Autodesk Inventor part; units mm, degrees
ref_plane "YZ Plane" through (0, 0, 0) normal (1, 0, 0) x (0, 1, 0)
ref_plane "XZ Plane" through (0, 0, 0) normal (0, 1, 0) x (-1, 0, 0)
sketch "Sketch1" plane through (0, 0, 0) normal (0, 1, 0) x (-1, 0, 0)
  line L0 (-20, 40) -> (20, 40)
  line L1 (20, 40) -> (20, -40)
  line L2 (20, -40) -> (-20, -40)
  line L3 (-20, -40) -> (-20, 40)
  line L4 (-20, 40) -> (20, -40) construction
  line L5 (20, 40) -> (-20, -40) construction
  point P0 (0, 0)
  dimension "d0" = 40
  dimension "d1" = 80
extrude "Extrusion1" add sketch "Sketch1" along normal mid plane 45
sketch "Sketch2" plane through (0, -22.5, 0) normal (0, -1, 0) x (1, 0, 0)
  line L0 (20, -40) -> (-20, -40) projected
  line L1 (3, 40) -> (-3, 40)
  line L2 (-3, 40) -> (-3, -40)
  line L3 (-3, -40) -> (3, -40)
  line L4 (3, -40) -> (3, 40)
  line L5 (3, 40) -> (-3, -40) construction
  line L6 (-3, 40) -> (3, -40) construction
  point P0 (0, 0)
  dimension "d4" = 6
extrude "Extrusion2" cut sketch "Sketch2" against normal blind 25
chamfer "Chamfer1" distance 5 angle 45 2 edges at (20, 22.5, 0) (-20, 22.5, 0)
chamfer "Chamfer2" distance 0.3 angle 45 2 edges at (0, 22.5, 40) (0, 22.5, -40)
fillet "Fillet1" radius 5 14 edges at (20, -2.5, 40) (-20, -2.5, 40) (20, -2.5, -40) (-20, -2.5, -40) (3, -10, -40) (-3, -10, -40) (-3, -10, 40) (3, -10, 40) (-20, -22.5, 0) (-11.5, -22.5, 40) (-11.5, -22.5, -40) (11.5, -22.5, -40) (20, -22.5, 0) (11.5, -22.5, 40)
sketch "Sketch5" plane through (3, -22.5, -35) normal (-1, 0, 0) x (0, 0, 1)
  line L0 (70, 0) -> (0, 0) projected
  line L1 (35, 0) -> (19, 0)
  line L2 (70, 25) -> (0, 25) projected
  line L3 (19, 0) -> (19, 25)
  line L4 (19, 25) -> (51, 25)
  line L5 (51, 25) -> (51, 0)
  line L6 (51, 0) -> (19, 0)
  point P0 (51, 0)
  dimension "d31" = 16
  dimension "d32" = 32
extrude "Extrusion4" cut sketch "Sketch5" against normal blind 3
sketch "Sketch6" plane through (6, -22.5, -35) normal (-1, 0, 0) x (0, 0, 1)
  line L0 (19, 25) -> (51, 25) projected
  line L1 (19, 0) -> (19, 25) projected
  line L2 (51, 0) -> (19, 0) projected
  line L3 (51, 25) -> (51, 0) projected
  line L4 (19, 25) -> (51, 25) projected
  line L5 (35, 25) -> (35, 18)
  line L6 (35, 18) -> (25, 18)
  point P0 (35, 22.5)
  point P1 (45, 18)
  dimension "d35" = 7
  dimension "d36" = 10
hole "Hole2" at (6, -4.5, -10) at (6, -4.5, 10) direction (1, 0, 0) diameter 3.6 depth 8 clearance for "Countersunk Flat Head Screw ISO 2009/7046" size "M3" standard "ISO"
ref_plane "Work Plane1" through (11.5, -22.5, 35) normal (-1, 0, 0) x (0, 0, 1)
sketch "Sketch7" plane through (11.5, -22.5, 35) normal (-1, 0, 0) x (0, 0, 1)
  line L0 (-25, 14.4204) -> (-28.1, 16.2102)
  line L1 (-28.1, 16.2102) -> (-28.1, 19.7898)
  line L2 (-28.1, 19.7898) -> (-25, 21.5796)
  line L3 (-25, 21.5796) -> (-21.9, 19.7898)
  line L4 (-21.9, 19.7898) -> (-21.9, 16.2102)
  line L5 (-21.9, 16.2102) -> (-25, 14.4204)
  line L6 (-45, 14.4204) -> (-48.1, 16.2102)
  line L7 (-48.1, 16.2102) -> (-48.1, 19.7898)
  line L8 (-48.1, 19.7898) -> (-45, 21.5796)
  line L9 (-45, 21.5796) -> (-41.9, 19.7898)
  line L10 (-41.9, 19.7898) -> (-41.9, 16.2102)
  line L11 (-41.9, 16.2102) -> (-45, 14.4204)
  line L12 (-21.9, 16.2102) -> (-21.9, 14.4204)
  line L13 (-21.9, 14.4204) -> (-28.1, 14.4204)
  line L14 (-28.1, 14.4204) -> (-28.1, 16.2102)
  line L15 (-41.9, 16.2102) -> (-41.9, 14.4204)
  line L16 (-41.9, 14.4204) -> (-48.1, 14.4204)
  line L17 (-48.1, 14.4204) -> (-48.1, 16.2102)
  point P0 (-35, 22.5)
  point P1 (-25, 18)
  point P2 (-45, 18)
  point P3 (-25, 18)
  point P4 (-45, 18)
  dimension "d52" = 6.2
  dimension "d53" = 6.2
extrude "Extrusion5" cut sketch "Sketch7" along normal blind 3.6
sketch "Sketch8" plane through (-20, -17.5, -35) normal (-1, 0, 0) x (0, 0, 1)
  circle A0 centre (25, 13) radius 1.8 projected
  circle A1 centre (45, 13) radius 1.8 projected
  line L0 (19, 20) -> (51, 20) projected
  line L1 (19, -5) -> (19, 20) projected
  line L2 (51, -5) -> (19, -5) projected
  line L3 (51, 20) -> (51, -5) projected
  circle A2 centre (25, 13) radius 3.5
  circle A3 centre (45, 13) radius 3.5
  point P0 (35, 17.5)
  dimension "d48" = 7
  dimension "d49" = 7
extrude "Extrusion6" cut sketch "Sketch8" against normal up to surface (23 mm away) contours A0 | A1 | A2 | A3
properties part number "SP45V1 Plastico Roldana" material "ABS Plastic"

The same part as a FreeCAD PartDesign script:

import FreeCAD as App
import Part
import Sketcher

V = App.Vector
Q = App.Units.Quantity


def edges_at(feature, points):
    """Names of the edges that pass closest to the given points."""
    edges = feature.Shape.Edges
    near = lambda p: min(range(len(edges)), key=lambda i: edges[i].distToShape(Part.Vertex(*p))[0])
    return sorted({f"Edge{near(p) + 1}" for p in points})


def add_polygon(sketch, points):
    """Adds a closed chain of lines whose ends are joined by coincident constraints."""
    first, n = sketch.GeometryCount, len(points)
    for a, b in zip(points, points[1:] + points[:1]):
        sketch.addGeometry(Part.LineSegment(App.Vector(*a, 0), App.Vector(*b, 0)), False)
    for i in range(n):
        sketch.addConstraint(Sketcher.Constraint("Coincident", first + i, 2, first + (i + 1) % n, 1))

doc = App.newDocument("Part")
params = doc.addObject("Spreadsheet::Sheet", "Params")
for row, (alias, value) in enumerate([
    ("sketch1_width", "40 mm"),
    ("sketch1_height", "80 mm"),
    ("pad1_length", "45 mm"),
    ("sketch2_width", "6 mm"),
    ("sketch2_height", "80 mm"),
    ("pocket1_length", "25 mm"),
    ("chamfer_size", "5 mm"),
    ("chamfer2_size", "0.3 mm"),
    ("fillet_radius", "5 mm"),
    ("sketch3_height", "32 mm"),
    ("sketch3_width", "25 mm"),
    ("pocket2_length", "3 mm"),
    ("sketch4_diameter", "3.6 mm"),
    ("hole_diameter", "3.6 mm"),
    ("hole_depth", "8 mm"),
    ("sketch5_height", "6.2 mm"),
    ("pocket3_length", "3.6 mm"),
    ("sketch6_diameter", "7 mm"),
    ("pocket4_length", "23 mm"),
], start=1):
    params.set(f"A{row}", alias)
    params.set(f"B{row}", "=" + value)
    params.setAlias(f"B{row}", alias)

body = doc.addObject("PartDesign::Body", "Body")

# Sketch on XZ plane
sketch1 = doc.addObject("Sketcher::SketchObject", "Sketch")
body.addObject(sketch1)
sketch1.AttachmentSupport = (doc.XZ_Plane, [""])
sketch1.MapMode = "FlatFace"
add_polygon(sketch1, [(-20, 40), (20, 40), (20, -40), (-20, -40)])  # lines 0-3
sketch1.addConstraint(Sketcher.Constraint("Horizontal", 0))
sketch1.addConstraint(Sketcher.Constraint("Vertical", 1))
sketch1.addConstraint(Sketcher.Constraint("Horizontal", 2))
sketch1.addConstraint(Sketcher.Constraint("Vertical", 3))
sketch1.addConstraint(Sketcher.Constraint("Symmetric", 0, 2, 2, 2, -1, 1))
sketch1.addConstraint(Sketcher.Constraint("DistanceX", 0, 1, 0, 2, 40.0))
sketch1.addConstraint(Sketcher.Constraint("DistanceY", 1, 2, 1, 1, 80.0))
sketch1.setExpression("Constraints[9]", "Params.sketch1_width")
sketch1.setExpression("Constraints[10]", "Params.sketch1_height")
pad1 = doc.addObject("PartDesign::Pad", "Pad")
body.addObject(pad1)
pad1.Profile = sketch1
pad1.setExpression("Length", "Params.pad1_length")
pad1.Midplane = True

# Sketch on XZ plane
sketch2 = doc.addObject("Sketcher::SketchObject", "Sketch001")
body.addObject(sketch2)
sketch2.AttachmentSupport = (doc.XZ_Plane, [""])
sketch2.MapMode = "FlatFace"
sketch2.AttachmentOffset = App.Placement(V(0, 0, 22.5), App.Rotation())
add_polygon(sketch2, [(-3, -40), (3, -40), (3, 40), (-3, 40)])  # lines 0-3
sketch2.addConstraint(Sketcher.Constraint("Horizontal", 0))
sketch2.addConstraint(Sketcher.Constraint("Vertical", 1))
sketch2.addConstraint(Sketcher.Constraint("Horizontal", 2))
sketch2.addConstraint(Sketcher.Constraint("Vertical", 3))
sketch2.addConstraint(Sketcher.Constraint("Symmetric", 0, 2, 2, 2, -1, 1))
sketch2.addConstraint(Sketcher.Constraint("DistanceX", 0, 1, 0, 2, 6.0))
sketch2.addConstraint(Sketcher.Constraint("DistanceY", 1, 1, 1, 2, 80.0))
sketch2.setExpression("Constraints[9]", "Params.sketch2_width")
sketch2.setExpression("Constraints[10]", "Params.sketch2_height")
pocket1 = doc.addObject("PartDesign::Pocket", "Pocket")
body.addObject(pocket1)
pocket1.Profile = sketch2
pocket1.setExpression("Length", "Params.pocket1_length")
doc.recompute()

chamfer = doc.addObject("PartDesign::Chamfer", "Chamfer")
body.addObject(chamfer)
chamfer.Base = (pocket1, edges_at(pocket1, [(20, 22.5, 0), (-20, 22.5, 0)]))
chamfer.setExpression("Size", "Params.chamfer_size")
doc.recompute()

chamfer2 = doc.addObject("PartDesign::Chamfer", "Chamfer001")
body.addObject(chamfer2)
chamfer2.Base = (chamfer, edges_at(chamfer, [(0, 22.5, 40), (0, 22.5, -40)]))
chamfer2.setExpression("Size", "Params.chamfer2_size")
doc.recompute()

fillet = doc.addObject("PartDesign::Fillet", "Fillet")
body.addObject(fillet)
fillet.Base = (chamfer2, edges_at(chamfer2, [
    (20, -2.5, 40),
    (-20, -2.5, 40),
    (20, -2.5, -40),
    (-20, -2.5, -40),
    (3, -10, -40),
    (-3, -10, -40),
    (-3, -10, 40),
    (3, -10, 40),
    (-20, -22.5, 0),
    (-11.5, -22.5, 40),
    (-11.5, -22.5, -40),
    (11.5, -22.5, -40),
    (20, -22.5, 0),
    (11.5, -22.5, 40),
]))
fillet.setExpression("Radius", "Params.fillet_radius")

# Sketch on YZ plane
sketch3 = doc.addObject("Sketcher::SketchObject", "Sketch002")
body.addObject(sketch3)
sketch3.AttachmentSupport = (doc.YZ_Plane, [""])
sketch3.MapMode = "FlatFace"
sketch3.AttachmentOffset = App.Placement(V(0, 0, 3), App.Rotation())
add_polygon(sketch3, [(-22, -16), (-22, 16), (2, 16), (2, -16)])  # lines 0-3
sketch3.addConstraint(Sketcher.Constraint("Vertical", 0))
sketch3.addConstraint(Sketcher.Constraint("Horizontal", 1))
sketch3.addConstraint(Sketcher.Constraint("Vertical", 2))
sketch3.addConstraint(Sketcher.Constraint("Horizontal", 3))
sketch3.addConstraint(Sketcher.Constraint("DistanceY", 0, 1, 0, 2, 32.0))
sketch3.addConstraint(Sketcher.Constraint("DistanceY", -1, 1, 0, 2, 16.0))
sketch3.addConstraint(Sketcher.Constraint("DistanceX", 1, 1, 1, 2, 25.0))
sketch3.addConstraint(Sketcher.Constraint("DistanceX", 0, 2, -1, 1, 22.5))
sketch3.setExpression("Constraints[8]", "Params.sketch3_height")
sketch3.setExpression("Constraints[10]", "Params.sketch3_width")
pocket2 = doc.addObject("PartDesign::Pocket", "Pocket001")
body.addObject(pocket2)
pocket2.Profile = sketch3
pocket2.setExpression("Length", "Params.pocket2_length")
pocket2.Reversed = True

# Sketch on YZ plane
sketch4 = doc.addObject("Sketcher::SketchObject", "Sketch003")
body.addObject(sketch4)
sketch4.AttachmentSupport = (doc.YZ_Plane, [""])
sketch4.MapMode = "FlatFace"
sketch4.AttachmentOffset = App.Placement(V(0, 0, 6), App.Rotation())
sketch4.addGeometry(Part.Circle(V(-4.5, -10, 0), V(0, 0, 1), 1.8), False)
sketch4.addGeometry(Part.Circle(V(-4.5, 10, 0), V(0, 0, 1), 1.8), False)
sketch4.addConstraint(Sketcher.Constraint("Equal", 0, 1))
sketch4.addConstraint(Sketcher.Constraint("Symmetric", 0, 3, 1, 3, -1))
sketch4.addConstraint(Sketcher.Constraint("Diameter", 0, 3.6))
sketch4.addConstraint(Sketcher.Constraint("DistanceY", 0, 3, -1, 1, 10.0))
sketch4.addConstraint(Sketcher.Constraint("DistanceX", 0, 3, -1, 1, 4.5))
sketch4.setExpression("Constraints[2]", "Params.sketch4_diameter")
doc.recompute()
hole = doc.addObject("PartDesign::Hole", "Hole")
body.addObject(hole)
hole.Profile = sketch4
hole.ThreadType = "None"
hole.setExpression("Diameter", "Params.hole_diameter")
hole.DepthType = "Dimension"
hole.setExpression("Depth", "Params.hole_depth")
hole.DrillPoint = "Flat"
hole.Reversed = True

# Sketch on YZ plane
sketch5 = doc.addObject("Sketcher::SketchObject", "Sketch004")
body.addObject(sketch5)
sketch5.AttachmentSupport = (doc.YZ_Plane, [""])
sketch5.MapMode = "FlatFace"
sketch5.AttachmentOffset = App.Placement(V(0, 0, 11.5), App.Rotation())
add_polygon(sketch5, [(-8.1, 6.9), (-8.1, 13.1), (-2.7, 13.1), (-0.9, 10), (-2.7, 6.9)])  # lines 0-4
add_polygon(sketch5, [(-8.1, -13.1), (-8.1, -6.9), (-2.7, -6.9), (-0.9, -10), (-2.7, -13.1)])  # lines 5-9
sketch5.addConstraint(Sketcher.Constraint("Vertical", 0))
sketch5.addConstraint(Sketcher.Constraint("Horizontal", 1))
sketch5.addConstraint(Sketcher.Constraint("Horizontal", 4))
sketch5.addConstraint(Sketcher.Constraint("Vertical", 5))
sketch5.addConstraint(Sketcher.Constraint("Horizontal", 6))
sketch5.addConstraint(Sketcher.Constraint("Horizontal", 9))
sketch5.addConstraint(Sketcher.Constraint("Symmetric", 4, 2, 5, 2, -1))
sketch5.addConstraint(Sketcher.Constraint("Symmetric", 2, 2, 7, 2, -1))
sketch5.addConstraint(Sketcher.Constraint("Symmetric", 1, 2, 8, 2, -1))
sketch5.addConstraint(Sketcher.Constraint("Parallel", 2, 7))
sketch5.addConstraint(Sketcher.Constraint("Parallel", 3, 8))
sketch5.addConstraint(Sketcher.Constraint("Vertical", 1, 2, 3, 2))
sketch5.addConstraint(Sketcher.Constraint("DistanceY", 0, 1, 0, 2, 6.2))
sketch5.addConstraint(Sketcher.Constraint("Angle", 2, Q("-59.9998 deg")))
sketch5.addConstraint(Sketcher.Constraint("DistanceY", -1, 1, 2, 2, 10.0))
sketch5.addConstraint(Sketcher.Constraint("DistanceX", 1, 1, 1, 2, 5.3694))
sketch5.addConstraint(Sketcher.Constraint("DistanceX", 0, 2, -1, 1, 8.0796))
sketch5.setExpression("Constraints[22]", "Params.sketch5_height")
pocket3 = doc.addObject("PartDesign::Pocket", "Pocket002")
body.addObject(pocket3)
pocket3.Profile = sketch5
pocket3.setExpression("Length", "Params.pocket3_length")

# Sketch on YZ plane
sketch6 = doc.addObject("Sketcher::SketchObject", "Sketch005")
body.addObject(sketch6)
sketch6.AttachmentSupport = (doc.YZ_Plane, [""])
sketch6.MapMode = "FlatFace"
sketch6.AttachmentOffset = App.Placement(V(0, 0, -20), App.Rotation())
sketch6.addGeometry(Part.Circle(V(-4.5, -10, 0), V(0, 0, 1), 3.5), False)
sketch6.addGeometry(Part.Circle(V(-4.5, 10, 0), V(0, 0, 1), 3.5), False)
sketch6.addConstraint(Sketcher.Constraint("Equal", 0, 1))
sketch6.addConstraint(Sketcher.Constraint("Symmetric", 0, 3, 1, 3, -1))
sketch6.addConstraint(Sketcher.Constraint("Diameter", 0, 7.0))
sketch6.addConstraint(Sketcher.Constraint("DistanceY", 0, 3, -1, 1, 10.0))
sketch6.addConstraint(Sketcher.Constraint("DistanceX", 0, 3, -1, 1, 4.5))
sketch6.setExpression("Constraints[2]", "Params.sketch6_diameter")
pocket4 = doc.addObject("PartDesign::Pocket", "Pocket003")
body.addObject(pocket4)
pocket4.Profile = sketch6
pocket4.setExpression("Length", "Params.pocket4_length")
pocket4.Reversed = True

doc.recompute()
